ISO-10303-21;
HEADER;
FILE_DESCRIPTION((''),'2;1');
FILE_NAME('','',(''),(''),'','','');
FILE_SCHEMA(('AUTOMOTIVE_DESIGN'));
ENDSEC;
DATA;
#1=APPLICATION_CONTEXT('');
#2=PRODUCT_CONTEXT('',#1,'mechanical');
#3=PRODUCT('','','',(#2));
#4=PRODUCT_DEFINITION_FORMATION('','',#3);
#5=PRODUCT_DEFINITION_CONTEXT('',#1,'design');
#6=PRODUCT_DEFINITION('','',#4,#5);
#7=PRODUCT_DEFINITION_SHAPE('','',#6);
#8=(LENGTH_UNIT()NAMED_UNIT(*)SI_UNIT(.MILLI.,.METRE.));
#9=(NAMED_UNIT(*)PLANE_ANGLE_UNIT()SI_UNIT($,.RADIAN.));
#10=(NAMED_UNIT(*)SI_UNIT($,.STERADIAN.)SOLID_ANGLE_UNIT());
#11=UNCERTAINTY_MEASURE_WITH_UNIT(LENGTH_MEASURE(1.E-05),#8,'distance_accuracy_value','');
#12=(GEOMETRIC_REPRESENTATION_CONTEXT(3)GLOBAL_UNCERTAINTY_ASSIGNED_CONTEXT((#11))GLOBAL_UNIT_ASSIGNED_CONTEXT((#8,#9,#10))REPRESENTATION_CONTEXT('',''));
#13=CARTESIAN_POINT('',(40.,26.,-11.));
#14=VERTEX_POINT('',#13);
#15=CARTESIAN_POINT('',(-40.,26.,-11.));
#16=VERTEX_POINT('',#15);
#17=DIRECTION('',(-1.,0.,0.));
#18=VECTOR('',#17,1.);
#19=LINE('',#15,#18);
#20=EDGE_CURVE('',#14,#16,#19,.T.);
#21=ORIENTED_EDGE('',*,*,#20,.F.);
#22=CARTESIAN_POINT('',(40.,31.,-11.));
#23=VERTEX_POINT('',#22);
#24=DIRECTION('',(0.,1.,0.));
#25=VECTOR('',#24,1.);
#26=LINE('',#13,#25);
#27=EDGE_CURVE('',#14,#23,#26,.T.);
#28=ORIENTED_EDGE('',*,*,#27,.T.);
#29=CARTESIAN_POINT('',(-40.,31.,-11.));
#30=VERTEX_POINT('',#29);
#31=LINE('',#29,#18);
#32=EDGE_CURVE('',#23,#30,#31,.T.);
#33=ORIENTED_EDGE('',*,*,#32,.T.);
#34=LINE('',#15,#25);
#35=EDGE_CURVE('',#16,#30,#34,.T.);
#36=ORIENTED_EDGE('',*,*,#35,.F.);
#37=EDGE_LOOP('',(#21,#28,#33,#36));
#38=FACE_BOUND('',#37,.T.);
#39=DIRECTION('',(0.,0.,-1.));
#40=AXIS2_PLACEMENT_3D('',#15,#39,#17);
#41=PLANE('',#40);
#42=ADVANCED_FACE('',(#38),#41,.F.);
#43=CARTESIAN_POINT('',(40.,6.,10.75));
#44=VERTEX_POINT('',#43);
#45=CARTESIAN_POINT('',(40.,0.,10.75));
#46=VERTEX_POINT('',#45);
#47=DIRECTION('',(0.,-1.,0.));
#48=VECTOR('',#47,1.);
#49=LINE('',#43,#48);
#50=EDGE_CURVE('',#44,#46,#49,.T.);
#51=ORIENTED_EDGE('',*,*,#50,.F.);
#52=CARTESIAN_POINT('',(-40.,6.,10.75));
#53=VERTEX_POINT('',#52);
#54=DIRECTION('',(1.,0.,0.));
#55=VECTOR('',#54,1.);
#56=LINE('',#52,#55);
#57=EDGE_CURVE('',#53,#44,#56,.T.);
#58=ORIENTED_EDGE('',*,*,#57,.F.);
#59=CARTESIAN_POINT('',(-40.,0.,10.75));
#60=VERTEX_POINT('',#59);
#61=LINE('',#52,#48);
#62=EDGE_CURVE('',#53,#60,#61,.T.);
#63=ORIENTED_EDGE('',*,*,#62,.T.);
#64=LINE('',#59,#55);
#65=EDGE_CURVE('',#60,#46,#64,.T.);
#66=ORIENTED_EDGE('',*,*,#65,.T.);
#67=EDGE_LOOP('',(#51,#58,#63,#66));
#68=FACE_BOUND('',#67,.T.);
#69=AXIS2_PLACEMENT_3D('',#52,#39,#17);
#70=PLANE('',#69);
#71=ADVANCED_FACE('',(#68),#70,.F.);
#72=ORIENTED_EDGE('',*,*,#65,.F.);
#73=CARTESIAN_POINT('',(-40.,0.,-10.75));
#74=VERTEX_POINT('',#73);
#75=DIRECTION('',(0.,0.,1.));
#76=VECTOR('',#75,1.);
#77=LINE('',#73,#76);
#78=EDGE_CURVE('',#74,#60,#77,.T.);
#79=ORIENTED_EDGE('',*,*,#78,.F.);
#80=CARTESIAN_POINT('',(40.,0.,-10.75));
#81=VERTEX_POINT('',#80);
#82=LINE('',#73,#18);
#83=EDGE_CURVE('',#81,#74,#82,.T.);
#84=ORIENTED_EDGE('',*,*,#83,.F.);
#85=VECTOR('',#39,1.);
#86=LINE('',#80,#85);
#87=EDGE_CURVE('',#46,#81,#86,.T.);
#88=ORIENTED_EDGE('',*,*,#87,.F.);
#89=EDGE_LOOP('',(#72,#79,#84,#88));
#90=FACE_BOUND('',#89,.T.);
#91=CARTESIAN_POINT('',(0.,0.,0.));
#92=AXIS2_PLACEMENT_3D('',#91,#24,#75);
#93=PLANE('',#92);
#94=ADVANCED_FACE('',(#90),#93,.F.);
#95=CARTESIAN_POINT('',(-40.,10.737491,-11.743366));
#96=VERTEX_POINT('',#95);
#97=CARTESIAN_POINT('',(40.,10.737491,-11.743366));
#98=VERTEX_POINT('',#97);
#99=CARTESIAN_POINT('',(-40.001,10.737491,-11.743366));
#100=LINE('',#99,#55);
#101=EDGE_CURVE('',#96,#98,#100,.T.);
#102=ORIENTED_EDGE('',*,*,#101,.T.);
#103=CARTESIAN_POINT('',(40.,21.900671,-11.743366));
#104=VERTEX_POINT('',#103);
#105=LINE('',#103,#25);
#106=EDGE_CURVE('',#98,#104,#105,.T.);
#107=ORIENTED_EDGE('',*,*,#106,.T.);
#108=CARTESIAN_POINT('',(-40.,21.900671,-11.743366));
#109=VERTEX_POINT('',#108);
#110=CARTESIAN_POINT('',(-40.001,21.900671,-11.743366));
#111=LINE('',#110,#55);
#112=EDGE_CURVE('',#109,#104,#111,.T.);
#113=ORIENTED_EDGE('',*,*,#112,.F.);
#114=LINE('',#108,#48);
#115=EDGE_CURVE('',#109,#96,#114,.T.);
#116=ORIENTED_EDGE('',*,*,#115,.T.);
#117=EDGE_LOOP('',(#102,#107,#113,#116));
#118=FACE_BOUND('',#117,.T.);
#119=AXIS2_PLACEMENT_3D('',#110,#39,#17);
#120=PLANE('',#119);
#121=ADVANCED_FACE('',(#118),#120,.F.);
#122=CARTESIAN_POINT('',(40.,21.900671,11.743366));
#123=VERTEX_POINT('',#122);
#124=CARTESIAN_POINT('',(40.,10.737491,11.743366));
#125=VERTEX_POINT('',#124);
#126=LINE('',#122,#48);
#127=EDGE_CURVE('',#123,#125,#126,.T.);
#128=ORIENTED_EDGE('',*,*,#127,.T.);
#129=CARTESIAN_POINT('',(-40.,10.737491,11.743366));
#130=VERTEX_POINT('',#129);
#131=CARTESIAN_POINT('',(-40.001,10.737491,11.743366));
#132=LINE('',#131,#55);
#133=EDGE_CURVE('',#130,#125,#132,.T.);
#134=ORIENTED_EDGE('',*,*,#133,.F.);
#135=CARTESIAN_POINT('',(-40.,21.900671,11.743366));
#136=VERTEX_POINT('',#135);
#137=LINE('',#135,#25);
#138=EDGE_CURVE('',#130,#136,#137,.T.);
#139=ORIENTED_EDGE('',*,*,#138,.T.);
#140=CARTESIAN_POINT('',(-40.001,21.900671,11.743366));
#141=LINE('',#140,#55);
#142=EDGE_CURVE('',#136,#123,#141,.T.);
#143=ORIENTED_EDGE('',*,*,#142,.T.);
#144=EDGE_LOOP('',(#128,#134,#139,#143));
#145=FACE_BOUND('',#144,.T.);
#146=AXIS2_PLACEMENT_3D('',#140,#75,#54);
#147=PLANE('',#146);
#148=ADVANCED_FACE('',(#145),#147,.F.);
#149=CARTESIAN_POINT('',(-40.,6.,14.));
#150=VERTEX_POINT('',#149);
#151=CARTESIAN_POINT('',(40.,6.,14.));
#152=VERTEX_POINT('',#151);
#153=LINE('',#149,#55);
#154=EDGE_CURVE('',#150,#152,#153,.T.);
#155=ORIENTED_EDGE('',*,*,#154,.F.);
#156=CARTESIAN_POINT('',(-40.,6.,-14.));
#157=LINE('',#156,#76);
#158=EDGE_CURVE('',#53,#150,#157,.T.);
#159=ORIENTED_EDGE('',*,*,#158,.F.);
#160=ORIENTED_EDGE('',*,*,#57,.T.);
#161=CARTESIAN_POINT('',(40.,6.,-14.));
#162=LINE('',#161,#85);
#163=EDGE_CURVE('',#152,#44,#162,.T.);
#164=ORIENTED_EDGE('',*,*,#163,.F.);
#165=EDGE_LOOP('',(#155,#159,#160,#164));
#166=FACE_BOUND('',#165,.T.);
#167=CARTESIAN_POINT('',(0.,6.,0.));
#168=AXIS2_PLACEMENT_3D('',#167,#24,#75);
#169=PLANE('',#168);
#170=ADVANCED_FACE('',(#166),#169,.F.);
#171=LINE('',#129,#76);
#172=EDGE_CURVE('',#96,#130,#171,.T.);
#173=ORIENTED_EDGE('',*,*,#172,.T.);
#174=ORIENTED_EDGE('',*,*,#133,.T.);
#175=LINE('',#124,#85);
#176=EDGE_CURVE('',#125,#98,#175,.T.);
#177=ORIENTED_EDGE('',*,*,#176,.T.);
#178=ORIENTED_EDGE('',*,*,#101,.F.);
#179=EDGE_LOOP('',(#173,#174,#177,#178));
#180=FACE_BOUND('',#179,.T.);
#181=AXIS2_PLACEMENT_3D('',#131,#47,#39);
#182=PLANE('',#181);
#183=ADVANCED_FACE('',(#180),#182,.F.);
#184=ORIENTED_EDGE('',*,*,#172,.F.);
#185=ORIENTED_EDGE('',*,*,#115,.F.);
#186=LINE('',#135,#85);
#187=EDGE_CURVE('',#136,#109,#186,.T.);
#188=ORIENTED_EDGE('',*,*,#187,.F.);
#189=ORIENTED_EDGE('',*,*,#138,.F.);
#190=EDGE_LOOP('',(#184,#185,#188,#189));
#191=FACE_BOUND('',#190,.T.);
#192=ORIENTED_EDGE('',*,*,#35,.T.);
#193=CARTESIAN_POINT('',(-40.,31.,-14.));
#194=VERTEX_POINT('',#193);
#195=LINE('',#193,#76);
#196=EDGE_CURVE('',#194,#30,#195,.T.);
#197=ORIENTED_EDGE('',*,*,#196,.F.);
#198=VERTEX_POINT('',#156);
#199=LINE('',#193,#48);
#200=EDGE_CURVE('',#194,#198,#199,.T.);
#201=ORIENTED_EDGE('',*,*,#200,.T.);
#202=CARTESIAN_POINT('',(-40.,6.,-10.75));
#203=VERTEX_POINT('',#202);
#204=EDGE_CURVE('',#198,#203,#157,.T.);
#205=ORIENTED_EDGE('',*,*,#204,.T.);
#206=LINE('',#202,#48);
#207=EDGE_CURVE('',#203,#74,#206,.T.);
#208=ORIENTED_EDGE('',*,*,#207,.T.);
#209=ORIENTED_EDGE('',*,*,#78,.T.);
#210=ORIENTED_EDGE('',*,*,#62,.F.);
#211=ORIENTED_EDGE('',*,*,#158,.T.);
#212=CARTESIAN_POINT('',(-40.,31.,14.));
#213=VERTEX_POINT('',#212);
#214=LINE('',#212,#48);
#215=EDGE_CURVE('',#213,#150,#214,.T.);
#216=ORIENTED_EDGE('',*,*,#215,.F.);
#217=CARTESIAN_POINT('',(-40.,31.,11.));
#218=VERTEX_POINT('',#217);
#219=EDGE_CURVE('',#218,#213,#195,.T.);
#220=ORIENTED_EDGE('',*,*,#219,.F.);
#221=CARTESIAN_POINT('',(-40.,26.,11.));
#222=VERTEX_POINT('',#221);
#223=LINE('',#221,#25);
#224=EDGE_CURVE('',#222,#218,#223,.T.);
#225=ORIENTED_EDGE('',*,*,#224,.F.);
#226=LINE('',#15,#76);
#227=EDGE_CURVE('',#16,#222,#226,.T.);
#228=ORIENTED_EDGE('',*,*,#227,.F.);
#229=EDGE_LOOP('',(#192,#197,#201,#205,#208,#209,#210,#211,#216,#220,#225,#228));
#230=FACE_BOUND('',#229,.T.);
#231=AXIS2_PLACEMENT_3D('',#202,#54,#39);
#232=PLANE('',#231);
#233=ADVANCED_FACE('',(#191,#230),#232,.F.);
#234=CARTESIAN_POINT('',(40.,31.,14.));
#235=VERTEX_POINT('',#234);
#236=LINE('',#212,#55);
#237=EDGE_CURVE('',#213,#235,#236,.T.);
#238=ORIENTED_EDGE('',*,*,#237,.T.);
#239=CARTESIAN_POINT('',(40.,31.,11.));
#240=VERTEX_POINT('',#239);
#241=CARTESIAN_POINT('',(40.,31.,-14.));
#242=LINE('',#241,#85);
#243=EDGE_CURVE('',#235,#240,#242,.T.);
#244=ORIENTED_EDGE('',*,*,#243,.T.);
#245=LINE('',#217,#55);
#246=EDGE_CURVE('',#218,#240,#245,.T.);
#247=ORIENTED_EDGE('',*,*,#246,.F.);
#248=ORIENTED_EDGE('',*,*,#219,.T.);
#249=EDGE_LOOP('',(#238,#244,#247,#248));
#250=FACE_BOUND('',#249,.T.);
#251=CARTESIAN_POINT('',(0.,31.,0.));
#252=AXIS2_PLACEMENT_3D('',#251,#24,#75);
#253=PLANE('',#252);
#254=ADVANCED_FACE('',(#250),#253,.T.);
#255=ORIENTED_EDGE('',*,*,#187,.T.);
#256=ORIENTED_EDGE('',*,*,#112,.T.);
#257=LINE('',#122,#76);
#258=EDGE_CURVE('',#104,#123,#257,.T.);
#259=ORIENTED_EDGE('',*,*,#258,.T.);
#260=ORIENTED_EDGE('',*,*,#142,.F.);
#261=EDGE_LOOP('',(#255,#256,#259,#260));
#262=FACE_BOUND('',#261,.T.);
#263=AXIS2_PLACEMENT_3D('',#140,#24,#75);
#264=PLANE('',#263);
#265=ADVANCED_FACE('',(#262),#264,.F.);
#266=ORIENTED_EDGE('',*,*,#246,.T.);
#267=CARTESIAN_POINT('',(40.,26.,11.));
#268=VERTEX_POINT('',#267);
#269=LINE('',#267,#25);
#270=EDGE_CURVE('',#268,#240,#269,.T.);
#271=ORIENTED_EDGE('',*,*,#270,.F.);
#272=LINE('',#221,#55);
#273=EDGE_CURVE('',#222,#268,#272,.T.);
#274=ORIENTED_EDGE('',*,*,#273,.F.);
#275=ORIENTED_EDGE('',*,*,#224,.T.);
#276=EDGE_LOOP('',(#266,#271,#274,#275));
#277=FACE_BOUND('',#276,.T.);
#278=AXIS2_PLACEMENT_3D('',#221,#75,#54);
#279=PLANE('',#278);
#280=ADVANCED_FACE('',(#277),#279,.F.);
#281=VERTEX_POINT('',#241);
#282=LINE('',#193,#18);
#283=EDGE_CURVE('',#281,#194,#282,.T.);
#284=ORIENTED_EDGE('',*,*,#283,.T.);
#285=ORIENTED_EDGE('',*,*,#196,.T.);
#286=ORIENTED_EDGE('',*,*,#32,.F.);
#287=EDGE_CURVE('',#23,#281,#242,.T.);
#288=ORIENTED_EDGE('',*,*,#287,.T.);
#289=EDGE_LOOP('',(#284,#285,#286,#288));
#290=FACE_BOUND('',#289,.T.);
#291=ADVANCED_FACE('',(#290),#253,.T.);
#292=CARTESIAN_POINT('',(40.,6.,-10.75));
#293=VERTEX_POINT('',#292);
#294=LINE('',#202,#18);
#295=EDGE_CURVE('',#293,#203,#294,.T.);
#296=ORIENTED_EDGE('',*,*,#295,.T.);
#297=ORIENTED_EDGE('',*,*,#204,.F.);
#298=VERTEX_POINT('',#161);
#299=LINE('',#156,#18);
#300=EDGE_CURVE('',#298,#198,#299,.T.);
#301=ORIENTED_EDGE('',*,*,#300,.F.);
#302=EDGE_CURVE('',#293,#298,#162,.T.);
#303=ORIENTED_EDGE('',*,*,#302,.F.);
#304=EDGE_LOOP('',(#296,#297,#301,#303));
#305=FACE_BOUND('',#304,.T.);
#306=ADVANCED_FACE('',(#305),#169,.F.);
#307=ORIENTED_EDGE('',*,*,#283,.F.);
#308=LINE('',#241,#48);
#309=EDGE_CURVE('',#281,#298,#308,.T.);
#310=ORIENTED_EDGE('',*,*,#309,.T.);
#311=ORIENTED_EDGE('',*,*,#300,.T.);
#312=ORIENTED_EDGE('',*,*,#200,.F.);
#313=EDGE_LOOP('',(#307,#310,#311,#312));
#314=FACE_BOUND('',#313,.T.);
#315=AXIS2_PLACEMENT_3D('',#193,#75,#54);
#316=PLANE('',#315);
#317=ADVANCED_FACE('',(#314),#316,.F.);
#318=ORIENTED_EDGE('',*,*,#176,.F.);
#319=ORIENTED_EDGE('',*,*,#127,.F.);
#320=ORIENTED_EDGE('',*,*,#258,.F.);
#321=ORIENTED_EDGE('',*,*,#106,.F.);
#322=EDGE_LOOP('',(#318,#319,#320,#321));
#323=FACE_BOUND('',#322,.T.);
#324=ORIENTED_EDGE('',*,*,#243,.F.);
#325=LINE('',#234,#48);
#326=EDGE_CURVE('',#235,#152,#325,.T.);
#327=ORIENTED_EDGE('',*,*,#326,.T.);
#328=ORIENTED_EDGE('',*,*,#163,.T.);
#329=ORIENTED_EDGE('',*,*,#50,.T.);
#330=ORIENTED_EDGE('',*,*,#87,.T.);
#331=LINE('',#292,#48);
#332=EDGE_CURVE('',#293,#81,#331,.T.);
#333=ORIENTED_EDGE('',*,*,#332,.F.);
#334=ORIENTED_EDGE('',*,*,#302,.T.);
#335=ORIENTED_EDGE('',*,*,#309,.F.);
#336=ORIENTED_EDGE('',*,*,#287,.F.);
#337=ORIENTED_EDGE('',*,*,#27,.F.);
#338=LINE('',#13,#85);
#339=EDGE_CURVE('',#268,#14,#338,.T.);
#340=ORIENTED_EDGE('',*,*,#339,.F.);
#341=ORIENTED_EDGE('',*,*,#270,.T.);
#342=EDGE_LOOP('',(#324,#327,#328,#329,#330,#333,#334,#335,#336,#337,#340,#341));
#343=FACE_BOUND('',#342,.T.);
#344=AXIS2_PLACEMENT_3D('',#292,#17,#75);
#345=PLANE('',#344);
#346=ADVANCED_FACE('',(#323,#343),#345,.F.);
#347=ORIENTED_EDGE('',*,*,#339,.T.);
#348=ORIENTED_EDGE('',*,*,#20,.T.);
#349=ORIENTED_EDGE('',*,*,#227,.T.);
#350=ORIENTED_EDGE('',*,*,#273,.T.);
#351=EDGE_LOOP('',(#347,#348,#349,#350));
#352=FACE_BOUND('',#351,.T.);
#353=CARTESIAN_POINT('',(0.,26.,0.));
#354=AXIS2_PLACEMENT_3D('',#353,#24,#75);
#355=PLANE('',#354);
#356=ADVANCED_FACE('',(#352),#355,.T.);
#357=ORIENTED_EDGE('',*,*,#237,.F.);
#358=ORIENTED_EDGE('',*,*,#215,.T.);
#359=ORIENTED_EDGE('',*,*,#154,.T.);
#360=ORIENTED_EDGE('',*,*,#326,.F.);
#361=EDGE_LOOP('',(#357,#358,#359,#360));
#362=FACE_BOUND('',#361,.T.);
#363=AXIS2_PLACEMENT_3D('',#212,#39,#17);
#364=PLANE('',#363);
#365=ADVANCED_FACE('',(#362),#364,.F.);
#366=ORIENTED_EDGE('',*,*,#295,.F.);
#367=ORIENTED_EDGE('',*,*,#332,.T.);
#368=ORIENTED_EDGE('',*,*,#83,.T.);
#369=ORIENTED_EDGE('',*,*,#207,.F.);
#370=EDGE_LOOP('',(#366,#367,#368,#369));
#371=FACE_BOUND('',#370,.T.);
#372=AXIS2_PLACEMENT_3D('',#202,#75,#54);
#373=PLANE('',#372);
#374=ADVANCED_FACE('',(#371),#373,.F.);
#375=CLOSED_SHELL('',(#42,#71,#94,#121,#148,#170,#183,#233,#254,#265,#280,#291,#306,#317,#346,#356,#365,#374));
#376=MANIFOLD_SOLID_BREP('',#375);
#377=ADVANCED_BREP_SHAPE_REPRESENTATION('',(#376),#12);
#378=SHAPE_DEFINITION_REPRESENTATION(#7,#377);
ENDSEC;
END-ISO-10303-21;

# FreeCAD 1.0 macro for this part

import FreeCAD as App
import Part
import Sketcher
from FreeCAD import Vector
Q = App.Units.Quantity


def add_polygon(sketch, points):
    """Adds a closed chain of lines whose ends are joined by coincident constraints."""
    first, n = sketch.GeometryCount, len(points)
    for a, b in zip(points, points[1:] + points[:1]):
        sketch.addGeometry(Part.LineSegment(App.Vector(*a, 0), App.Vector(*b, 0)), False)
    for i in range(n):
        sketch.addConstraint(Sketcher.Constraint("Coincident", first + i, 2, first + (i + 1) % n, 1))

doc = App.newDocument("Part")
params = doc.addObject("Spreadsheet::Sheet", "Params")
for row, (alias, value) in enumerate([
    ("sketch1_width", "80 mm"),
    ("sketch1_height", "21.5 mm"),
    ("pad1_length", "6 mm"),
    ("sketch2_width", "80 mm"),
    ("sketch2_height", "28 mm"),
    ("pad2_length", "25 mm"),
    ("sketch3_width", "80 mm"),
    ("sketch3_height", "22 mm"),
    ("pocket1_length", "5 mm"),
], start=1):
    params.set(f"A{row}", alias)
    params.set(f"B{row}", "=" + value)
    params.setAlias(f"B{row}", alias)

body = doc.addObject("PartDesign::Body", "Body")

sketch1 = body.newObject("Sketcher::SketchObject", "Sketch")
sketch1.AttachmentSupport = (doc.getObject("XZ_Plane"), [""])
sketch1.MapMode = "FlatFace"
add_polygon(sketch1, [(-40, -11), (-40, 11), (40, 11), (40, -11)])
sketch1.addConstraint(Sketcher.Constraint("Vertical", 0))
sketch1.addConstraint(Sketcher.Constraint("Horizontal", 1))
sketch1.addConstraint(Sketcher.Constraint("Vertical", 2))
sketch1.addConstraint(Sketcher.Constraint("Horizontal", 3))
sketch1.addConstraint(Sketcher.Constraint("Symmetric", 0, 2, 2, 2, -1, 1))
sketch1.addConstraint(Sketcher.Constraint("DistanceX", 1, 1, 1, 2, Q("80 mm")))
sketch1.addConstraint(Sketcher.Constraint("DistanceY", 0, 1, 0, 2, Q("21.5 mm")))
sketch1.setExpression("Constraints[9]", "Params.sketch1_width")
sketch1.setExpression("Constraints[10]", "Params.sketch1_height")
pad1 = body.newObject("PartDesign::Pad", "Pad")
pad1.Profile = sketch1
pad1.setExpression("Length", "Params.pad1_length")
pad1.Reversed = True

sketch2 = body.newObject("Sketcher::SketchObject", "Sketch001")
sketch2.AttachmentSupport = (doc.getObject("XZ_Plane"), [""])
sketch2.MapMode = "FlatFace"
sketch2.AttachmentOffset = App.Placement(Vector(0, 0, -6), App.Rotation())
add_polygon(sketch2, [(-40, -14), (-40, 14), (40, 14), (40, -14)])
sketch2.addConstraint(Sketcher.Constraint("Vertical", 0))
sketch2.addConstraint(Sketcher.Constraint("Horizontal", 1))
sketch2.addConstraint(Sketcher.Constraint("Vertical", 2))
sketch2.addConstraint(Sketcher.Constraint("Horizontal", 3))
sketch2.addConstraint(Sketcher.Constraint("Symmetric", 0, 2, 2, 2, -1, 1))
sketch2.addConstraint(Sketcher.Constraint("DistanceX", 1, 1, 1, 2, Q("80 mm")))
sketch2.addConstraint(Sketcher.Constraint("DistanceY", 0, 1, 0, 2, Q("28 mm")))
sketch2.setExpression("Constraints[9]", "Params.sketch2_width")
sketch2.setExpression("Constraints[10]", "Params.sketch2_height")
pad2 = body.newObject("PartDesign::Pad", "Pad001")
pad2.Profile = sketch2
pad2.setExpression("Length", "Params.pad2_length")
pad2.Reversed = True

sketch3 = body.newObject("Sketcher::SketchObject", "Sketch002")
sketch3.AttachmentSupport = (doc.getObject("XZ_Plane"), [""])
sketch3.MapMode = "FlatFace"
sketch3.AttachmentOffset = App.Placement(Vector(0, 0, -31), App.Rotation())
add_polygon(sketch3, [(-40, -11), (-40, 11), (40, 11), (40, -11)])
sketch3.addConstraint(Sketcher.Constraint("Vertical", 0))
sketch3.addConstraint(Sketcher.Constraint("Horizontal", 1))
sketch3.addConstraint(Sketcher.Constraint("Vertical", 2))
sketch3.addConstraint(Sketcher.Constraint("Horizontal", 3))
sketch3.addConstraint(Sketcher.Constraint("Symmetric", 0, 2, 2, 2, -1, 1))
sketch3.addConstraint(Sketcher.Constraint("DistanceX", 1, 1, 1, 2, Q("80 mm")))
sketch3.addConstraint(Sketcher.Constraint("DistanceY", 0, 1, 0, 2, Q("22 mm")))
sketch3.setExpression("Constraints[9]", "Params.sketch3_width")
sketch3.setExpression("Constraints[10]", "Params.sketch3_height")
pocket1 = body.newObject("PartDesign::Pocket", "Pocket")
pocket1.Profile = sketch3
pocket1.setExpression("Length", "Params.pocket1_length")
pocket1.Reversed = True

sketch4 = body.newObject("Sketcher::SketchObject", "Sketch003")
sketch4.AttachmentSupport = (doc.getObject("YZ_Plane"), [""])
sketch4.MapMode = "FlatFace"
sketch4.AttachmentOffset = App.Placement(Vector(0, 0, 40), App.Rotation())
add_polygon(sketch4, [(22, 12), (11, 12), (11, -12), (22, -12)])
sketch4.addConstraint(Sketcher.Constraint("Horizontal", 0))
sketch4.addConstraint(Sketcher.Constraint("Vertical", 1))
sketch4.addConstraint(Sketcher.Constraint("Horizontal", 2))
sketch4.addConstraint(Sketcher.Constraint("Vertical", 3))
sketch4.addConstraint(Sketcher.Constraint("DistanceX", 0, 2, 0, 1, Q("11.16318 mm")))
sketch4.addConstraint(Sketcher.Constraint("DistanceY", 1, 2, 1, 1, Q("23.486732 mm")))
sketch4.addConstraint(Sketcher.Constraint("DistanceX", -1, 1, 0, 2, Q("10.737491 mm")))
sketch4.addConstraint(Sketcher.Constraint("DistanceY", -1, 1, 0, 2, Q("11.743366 mm")))
pocket2 = body.newObject("PartDesign::Pocket", "Pocket001")
pocket2.Profile = sketch4
pocket2.Type = "UpToFirst"

doc.recompute()
